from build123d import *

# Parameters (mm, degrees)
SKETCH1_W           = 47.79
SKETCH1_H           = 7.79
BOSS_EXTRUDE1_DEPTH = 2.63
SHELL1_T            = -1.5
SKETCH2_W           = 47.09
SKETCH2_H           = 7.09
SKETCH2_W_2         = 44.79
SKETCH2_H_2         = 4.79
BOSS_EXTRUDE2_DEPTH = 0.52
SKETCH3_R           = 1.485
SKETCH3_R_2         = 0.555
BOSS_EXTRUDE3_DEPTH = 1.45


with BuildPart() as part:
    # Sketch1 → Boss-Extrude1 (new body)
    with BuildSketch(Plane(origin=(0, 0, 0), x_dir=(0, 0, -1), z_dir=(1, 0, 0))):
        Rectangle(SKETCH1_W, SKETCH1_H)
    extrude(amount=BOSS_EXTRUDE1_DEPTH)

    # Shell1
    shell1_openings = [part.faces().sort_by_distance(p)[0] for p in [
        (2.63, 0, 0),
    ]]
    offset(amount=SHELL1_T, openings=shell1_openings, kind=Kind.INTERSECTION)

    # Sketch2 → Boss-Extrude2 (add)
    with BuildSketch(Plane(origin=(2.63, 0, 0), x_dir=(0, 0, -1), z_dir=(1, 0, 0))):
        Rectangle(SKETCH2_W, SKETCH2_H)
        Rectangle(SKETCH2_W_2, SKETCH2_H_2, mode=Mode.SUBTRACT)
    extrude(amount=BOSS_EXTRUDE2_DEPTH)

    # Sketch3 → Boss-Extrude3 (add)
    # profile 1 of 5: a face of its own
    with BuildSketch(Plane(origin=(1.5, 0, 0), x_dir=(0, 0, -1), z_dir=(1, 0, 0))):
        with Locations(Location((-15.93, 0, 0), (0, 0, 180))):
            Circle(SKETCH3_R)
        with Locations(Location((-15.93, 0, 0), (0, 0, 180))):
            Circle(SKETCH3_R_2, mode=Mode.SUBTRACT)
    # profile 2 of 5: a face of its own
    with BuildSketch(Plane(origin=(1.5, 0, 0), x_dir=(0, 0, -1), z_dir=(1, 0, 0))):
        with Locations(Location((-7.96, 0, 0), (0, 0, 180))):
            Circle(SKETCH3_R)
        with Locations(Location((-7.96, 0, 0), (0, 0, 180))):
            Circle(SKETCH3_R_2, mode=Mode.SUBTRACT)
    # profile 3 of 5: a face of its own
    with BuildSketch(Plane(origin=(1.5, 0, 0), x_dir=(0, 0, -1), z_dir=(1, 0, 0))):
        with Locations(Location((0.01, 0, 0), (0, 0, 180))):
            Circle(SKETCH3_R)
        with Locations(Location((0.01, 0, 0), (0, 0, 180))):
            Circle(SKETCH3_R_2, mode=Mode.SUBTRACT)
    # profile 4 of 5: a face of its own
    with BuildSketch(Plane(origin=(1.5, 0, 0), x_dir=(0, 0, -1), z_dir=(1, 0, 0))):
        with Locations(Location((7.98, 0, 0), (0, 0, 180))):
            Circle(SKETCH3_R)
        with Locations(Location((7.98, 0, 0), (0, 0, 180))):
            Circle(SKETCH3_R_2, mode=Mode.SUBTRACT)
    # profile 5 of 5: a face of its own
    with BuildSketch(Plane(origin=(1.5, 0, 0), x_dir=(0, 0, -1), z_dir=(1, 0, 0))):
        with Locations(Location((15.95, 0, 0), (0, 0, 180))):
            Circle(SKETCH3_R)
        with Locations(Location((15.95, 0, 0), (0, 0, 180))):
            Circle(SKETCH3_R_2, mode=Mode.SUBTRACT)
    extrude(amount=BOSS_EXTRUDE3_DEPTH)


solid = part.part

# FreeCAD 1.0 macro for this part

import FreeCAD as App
import Part
import Sketcher

V = App.Vector


def faces_at(feature, points):
    """Names of the faces that lie closest to the given points."""
    faces = feature.Shape.Faces
    near = lambda p: min(range(len(faces)), key=lambda i: faces[i].distToShape(Part.Vertex(*p))[0])
    return sorted({f"Face{near(p) + 1}" for p in points})


def add_polygon(sketch, points):
    """Adds a closed chain of lines whose ends are joined by coincident constraints."""
    first, n = sketch.GeometryCount, len(points)
    for a, b in zip(points, points[1:] + points[:1]):
        sketch.addGeometry(Part.LineSegment(App.Vector(*a, 0), App.Vector(*b, 0)), False)
    for i in range(n):
        sketch.addConstraint(Sketcher.Constraint("Coincident", first + i, 2, first + (i + 1) % n, 1))

doc = App.newDocument("Part")
body = doc.addObject("PartDesign::Body", "Body")

# Sketch on YZ plane
sketch1 = doc.addObject("Sketcher::SketchObject", "Sketch")
body.addObject(sketch1)
sketch1.AttachmentSupport = (doc.YZ_Plane, [""])
sketch1.MapMode = "FlatFace"
add_polygon(sketch1, [(4, 24), (-4, 24), (-4, -24), (4, -24)])  # lines 0-3
sketch1.addConstraint(Sketcher.Constraint("Horizontal", 0))
sketch1.addConstraint(Sketcher.Constraint("Vertical", 1))
sketch1.addConstraint(Sketcher.Constraint("Horizontal", 2))
sketch1.addConstraint(Sketcher.Constraint("Vertical", 3))
sketch1.addConstraint(Sketcher.Constraint("Symmetric", 0, 2, 2, 2, -1, 1))
sketch1.addConstraint(Sketcher.Constraint("DistanceX", 0, 2, 0, 1, 7.79))
sketch1.addConstraint(Sketcher.Constraint("DistanceY", 1, 2, 1, 1, 47.79))
pad1 = doc.addObject("PartDesign::Pad", "Pad")
body.addObject(pad1)
pad1.Profile = sketch1
pad1.Length = 2.63
doc.recompute()

thickness = doc.addObject("PartDesign::Thickness", "Thickness")
body.addObject(thickness)
thickness.Base = (pad1, faces_at(pad1, [(2.63, 0, 0)]))
thickness.Value = 1.5
thickness.Reversed = True
thickness.Join = "Intersection"

# Sketch on YZ plane
sketch2 = doc.addObject("Sketcher::SketchObject", "Sketch001")
body.addObject(sketch2)
sketch2.AttachmentSupport = (doc.YZ_Plane, [""])
sketch2.MapMode = "FlatFace"
sketch2.AttachmentOffset = App.Placement(V(0, 0, 2.63), App.Rotation())
add_polygon(sketch2, [(3.5, 23.5), (-3.5, 23.5), (-3.5, -23.5), (3.5, -23.5)])  # lines 0-3
add_polygon(sketch2, [(-2.4, -22.4), (-2.4, 22.4), (2.4, 22.4), (2.4, -22.4)])  # lines 4-7
sketch2.addConstraint(Sketcher.Constraint("Horizontal", 0))
sketch2.addConstraint(Sketcher.Constraint("Vertical", 1))
sketch2.addConstraint(Sketcher.Constraint("Horizontal", 2))
sketch2.addConstraint(Sketcher.Constraint("Vertical", 3))
sketch2.addConstraint(Sketcher.Constraint("Vertical", 4))
sketch2.addConstraint(Sketcher.Constraint("Horizontal", 5))
sketch2.addConstraint(Sketcher.Constraint("Vertical", 6))
sketch2.addConstraint(Sketcher.Constraint("Horizontal", 7))
sketch2.addConstraint(Sketcher.Constraint("Symmetric", 0, 2, 2, 2, -1, 1))
sketch2.addConstraint(Sketcher.Constraint("Symmetric", 4, 2, 6, 2, -1, 1))
sketch2.addConstraint(Sketcher.Constraint("DistanceX", 0, 2, 0, 1, 7.09))
sketch2.addConstraint(Sketcher.Constraint("DistanceX", 5, 1, 5, 2, 4.79))
sketch2.addConstraint(Sketcher.Constraint("DistanceY", 1, 2, 1, 1, 47.09))
sketch2.addConstraint(Sketcher.Constraint("DistanceY", 4, 1, 4, 2, 44.79))
pad2 = doc.addObject("PartDesign::Pad", "Pad001")
body.addObject(pad2)
pad2.Profile = sketch2
pad2.Length = 0.52

# Sketch on YZ plane
sketch3 = doc.addObject("Sketcher::SketchObject", "Sketch002")
body.addObject(sketch3)
sketch3.AttachmentSupport = (doc.YZ_Plane, [""])
sketch3.MapMode = "FlatFace"
sketch3.AttachmentOffset = App.Placement(V(0, 0, 1.5), App.Rotation())
sketch3.addGeometry(Part.Circle(V(0, 15.9, 0), V(0, 0, 1), 1.5), False)
sketch3.addGeometry(Part.Circle(V(0, 15.9, 0), V(0, 0, 1), 0.6), False)
sketch3.addGeometry(Part.Circle(V(0, 8, 0), V(0, 0, 1), 1.5), False)
sketch3.addGeometry(Part.Circle(V(0, 8, 0), V(0, 0, 1), 0.6), False)
sketch3.addGeometry(Part.Circle(V(0, 0, 0), V(0, 0, 1), 1.5), False)
sketch3.addGeometry(Part.Circle(V(0, 0, 0), V(0, 0, 1), 0.6), False)
sketch3.addGeometry(Part.Circle(V(0, -8, 0), V(0, 0, 1), 1.5), False)
sketch3.addGeometry(Part.Circle(V(0, -8, 0), V(0, 0, 1), 0.6), False)
sketch3.addGeometry(Part.Circle(V(0, -15.9, 0), V(0, 0, 1), 1.5), False)
sketch3.addGeometry(Part.Circle(V(0, -15.9, 0), V(0, 0, 1), 0.6), False)
sketch3.addConstraint(Sketcher.Constraint("Coincident", 1, 3, 0, 3))
sketch3.addConstraint(Sketcher.Constraint("Coincident", 3, 3, 2, 3))
sketch3.addConstraint(Sketcher.Constraint("Coincident", 5, 3, 4, 3))
sketch3.addConstraint(Sketcher.Constraint("Coincident", 7, 3, 6, 3))
sketch3.addConstraint(Sketcher.Constraint("Coincident", 9, 3, 8, 3))
sketch3.addConstraint(Sketcher.Constraint("Equal", 0, 2))
sketch3.addConstraint(Sketcher.Constraint("Equal", 1, 3))
sketch3.addConstraint(Sketcher.Constraint("Equal", 2, 4))
sketch3.addConstraint(Sketcher.Constraint("Equal", 3, 5))
sketch3.addConstraint(Sketcher.Constraint("Equal", 4, 6))
sketch3.addConstraint(Sketcher.Constraint("Equal", 5, 7))
sketch3.addConstraint(Sketcher.Constraint("Equal", 6, 8))
sketch3.addConstraint(Sketcher.Constraint("Equal", 7, 9))
sketch3.addConstraint(Sketcher.Constraint("PointOnObject", 0, 3, -2))
sketch3.addConstraint(Sketcher.Constraint("PointOnObject", 2, 3, -2))
sketch3.addConstraint(Sketcher.Constraint("PointOnObject", 4, 3, -2))
sketch3.addConstraint(Sketcher.Constraint("PointOnObject", 6, 3, -2))
sketch3.addConstraint(Sketcher.Constraint("PointOnObject", 8, 3, -2))
sketch3.addConstraint(Sketcher.Constraint("Diameter", 0, 2.97))
sketch3.addConstraint(Sketcher.Constraint("Diameter", 1, 1.11))
sketch3.addConstraint(Sketcher.Constraint("DistanceY", -1, 1, 0, 3, 15.93))
sketch3.addConstraint(Sketcher.Constraint("DistanceY", -1, 1, 2, 3, 7.96))
sketch3.addConstraint(Sketcher.Constraint("DistanceY", 4, 3, -1, 1, 0.01))
sketch3.addConstraint(Sketcher.Constraint("DistanceY", 6, 3, -1, 1, 7.98))
sketch3.addConstraint(Sketcher.Constraint("DistanceY", 8, 3, -1, 1, 15.95))
pad3 = doc.addObject("PartDesign::Pad", "Pad002")
body.addObject(pad3)
pad3.Profile = sketch3
pad3.Length = 1.45

doc.recompute()
